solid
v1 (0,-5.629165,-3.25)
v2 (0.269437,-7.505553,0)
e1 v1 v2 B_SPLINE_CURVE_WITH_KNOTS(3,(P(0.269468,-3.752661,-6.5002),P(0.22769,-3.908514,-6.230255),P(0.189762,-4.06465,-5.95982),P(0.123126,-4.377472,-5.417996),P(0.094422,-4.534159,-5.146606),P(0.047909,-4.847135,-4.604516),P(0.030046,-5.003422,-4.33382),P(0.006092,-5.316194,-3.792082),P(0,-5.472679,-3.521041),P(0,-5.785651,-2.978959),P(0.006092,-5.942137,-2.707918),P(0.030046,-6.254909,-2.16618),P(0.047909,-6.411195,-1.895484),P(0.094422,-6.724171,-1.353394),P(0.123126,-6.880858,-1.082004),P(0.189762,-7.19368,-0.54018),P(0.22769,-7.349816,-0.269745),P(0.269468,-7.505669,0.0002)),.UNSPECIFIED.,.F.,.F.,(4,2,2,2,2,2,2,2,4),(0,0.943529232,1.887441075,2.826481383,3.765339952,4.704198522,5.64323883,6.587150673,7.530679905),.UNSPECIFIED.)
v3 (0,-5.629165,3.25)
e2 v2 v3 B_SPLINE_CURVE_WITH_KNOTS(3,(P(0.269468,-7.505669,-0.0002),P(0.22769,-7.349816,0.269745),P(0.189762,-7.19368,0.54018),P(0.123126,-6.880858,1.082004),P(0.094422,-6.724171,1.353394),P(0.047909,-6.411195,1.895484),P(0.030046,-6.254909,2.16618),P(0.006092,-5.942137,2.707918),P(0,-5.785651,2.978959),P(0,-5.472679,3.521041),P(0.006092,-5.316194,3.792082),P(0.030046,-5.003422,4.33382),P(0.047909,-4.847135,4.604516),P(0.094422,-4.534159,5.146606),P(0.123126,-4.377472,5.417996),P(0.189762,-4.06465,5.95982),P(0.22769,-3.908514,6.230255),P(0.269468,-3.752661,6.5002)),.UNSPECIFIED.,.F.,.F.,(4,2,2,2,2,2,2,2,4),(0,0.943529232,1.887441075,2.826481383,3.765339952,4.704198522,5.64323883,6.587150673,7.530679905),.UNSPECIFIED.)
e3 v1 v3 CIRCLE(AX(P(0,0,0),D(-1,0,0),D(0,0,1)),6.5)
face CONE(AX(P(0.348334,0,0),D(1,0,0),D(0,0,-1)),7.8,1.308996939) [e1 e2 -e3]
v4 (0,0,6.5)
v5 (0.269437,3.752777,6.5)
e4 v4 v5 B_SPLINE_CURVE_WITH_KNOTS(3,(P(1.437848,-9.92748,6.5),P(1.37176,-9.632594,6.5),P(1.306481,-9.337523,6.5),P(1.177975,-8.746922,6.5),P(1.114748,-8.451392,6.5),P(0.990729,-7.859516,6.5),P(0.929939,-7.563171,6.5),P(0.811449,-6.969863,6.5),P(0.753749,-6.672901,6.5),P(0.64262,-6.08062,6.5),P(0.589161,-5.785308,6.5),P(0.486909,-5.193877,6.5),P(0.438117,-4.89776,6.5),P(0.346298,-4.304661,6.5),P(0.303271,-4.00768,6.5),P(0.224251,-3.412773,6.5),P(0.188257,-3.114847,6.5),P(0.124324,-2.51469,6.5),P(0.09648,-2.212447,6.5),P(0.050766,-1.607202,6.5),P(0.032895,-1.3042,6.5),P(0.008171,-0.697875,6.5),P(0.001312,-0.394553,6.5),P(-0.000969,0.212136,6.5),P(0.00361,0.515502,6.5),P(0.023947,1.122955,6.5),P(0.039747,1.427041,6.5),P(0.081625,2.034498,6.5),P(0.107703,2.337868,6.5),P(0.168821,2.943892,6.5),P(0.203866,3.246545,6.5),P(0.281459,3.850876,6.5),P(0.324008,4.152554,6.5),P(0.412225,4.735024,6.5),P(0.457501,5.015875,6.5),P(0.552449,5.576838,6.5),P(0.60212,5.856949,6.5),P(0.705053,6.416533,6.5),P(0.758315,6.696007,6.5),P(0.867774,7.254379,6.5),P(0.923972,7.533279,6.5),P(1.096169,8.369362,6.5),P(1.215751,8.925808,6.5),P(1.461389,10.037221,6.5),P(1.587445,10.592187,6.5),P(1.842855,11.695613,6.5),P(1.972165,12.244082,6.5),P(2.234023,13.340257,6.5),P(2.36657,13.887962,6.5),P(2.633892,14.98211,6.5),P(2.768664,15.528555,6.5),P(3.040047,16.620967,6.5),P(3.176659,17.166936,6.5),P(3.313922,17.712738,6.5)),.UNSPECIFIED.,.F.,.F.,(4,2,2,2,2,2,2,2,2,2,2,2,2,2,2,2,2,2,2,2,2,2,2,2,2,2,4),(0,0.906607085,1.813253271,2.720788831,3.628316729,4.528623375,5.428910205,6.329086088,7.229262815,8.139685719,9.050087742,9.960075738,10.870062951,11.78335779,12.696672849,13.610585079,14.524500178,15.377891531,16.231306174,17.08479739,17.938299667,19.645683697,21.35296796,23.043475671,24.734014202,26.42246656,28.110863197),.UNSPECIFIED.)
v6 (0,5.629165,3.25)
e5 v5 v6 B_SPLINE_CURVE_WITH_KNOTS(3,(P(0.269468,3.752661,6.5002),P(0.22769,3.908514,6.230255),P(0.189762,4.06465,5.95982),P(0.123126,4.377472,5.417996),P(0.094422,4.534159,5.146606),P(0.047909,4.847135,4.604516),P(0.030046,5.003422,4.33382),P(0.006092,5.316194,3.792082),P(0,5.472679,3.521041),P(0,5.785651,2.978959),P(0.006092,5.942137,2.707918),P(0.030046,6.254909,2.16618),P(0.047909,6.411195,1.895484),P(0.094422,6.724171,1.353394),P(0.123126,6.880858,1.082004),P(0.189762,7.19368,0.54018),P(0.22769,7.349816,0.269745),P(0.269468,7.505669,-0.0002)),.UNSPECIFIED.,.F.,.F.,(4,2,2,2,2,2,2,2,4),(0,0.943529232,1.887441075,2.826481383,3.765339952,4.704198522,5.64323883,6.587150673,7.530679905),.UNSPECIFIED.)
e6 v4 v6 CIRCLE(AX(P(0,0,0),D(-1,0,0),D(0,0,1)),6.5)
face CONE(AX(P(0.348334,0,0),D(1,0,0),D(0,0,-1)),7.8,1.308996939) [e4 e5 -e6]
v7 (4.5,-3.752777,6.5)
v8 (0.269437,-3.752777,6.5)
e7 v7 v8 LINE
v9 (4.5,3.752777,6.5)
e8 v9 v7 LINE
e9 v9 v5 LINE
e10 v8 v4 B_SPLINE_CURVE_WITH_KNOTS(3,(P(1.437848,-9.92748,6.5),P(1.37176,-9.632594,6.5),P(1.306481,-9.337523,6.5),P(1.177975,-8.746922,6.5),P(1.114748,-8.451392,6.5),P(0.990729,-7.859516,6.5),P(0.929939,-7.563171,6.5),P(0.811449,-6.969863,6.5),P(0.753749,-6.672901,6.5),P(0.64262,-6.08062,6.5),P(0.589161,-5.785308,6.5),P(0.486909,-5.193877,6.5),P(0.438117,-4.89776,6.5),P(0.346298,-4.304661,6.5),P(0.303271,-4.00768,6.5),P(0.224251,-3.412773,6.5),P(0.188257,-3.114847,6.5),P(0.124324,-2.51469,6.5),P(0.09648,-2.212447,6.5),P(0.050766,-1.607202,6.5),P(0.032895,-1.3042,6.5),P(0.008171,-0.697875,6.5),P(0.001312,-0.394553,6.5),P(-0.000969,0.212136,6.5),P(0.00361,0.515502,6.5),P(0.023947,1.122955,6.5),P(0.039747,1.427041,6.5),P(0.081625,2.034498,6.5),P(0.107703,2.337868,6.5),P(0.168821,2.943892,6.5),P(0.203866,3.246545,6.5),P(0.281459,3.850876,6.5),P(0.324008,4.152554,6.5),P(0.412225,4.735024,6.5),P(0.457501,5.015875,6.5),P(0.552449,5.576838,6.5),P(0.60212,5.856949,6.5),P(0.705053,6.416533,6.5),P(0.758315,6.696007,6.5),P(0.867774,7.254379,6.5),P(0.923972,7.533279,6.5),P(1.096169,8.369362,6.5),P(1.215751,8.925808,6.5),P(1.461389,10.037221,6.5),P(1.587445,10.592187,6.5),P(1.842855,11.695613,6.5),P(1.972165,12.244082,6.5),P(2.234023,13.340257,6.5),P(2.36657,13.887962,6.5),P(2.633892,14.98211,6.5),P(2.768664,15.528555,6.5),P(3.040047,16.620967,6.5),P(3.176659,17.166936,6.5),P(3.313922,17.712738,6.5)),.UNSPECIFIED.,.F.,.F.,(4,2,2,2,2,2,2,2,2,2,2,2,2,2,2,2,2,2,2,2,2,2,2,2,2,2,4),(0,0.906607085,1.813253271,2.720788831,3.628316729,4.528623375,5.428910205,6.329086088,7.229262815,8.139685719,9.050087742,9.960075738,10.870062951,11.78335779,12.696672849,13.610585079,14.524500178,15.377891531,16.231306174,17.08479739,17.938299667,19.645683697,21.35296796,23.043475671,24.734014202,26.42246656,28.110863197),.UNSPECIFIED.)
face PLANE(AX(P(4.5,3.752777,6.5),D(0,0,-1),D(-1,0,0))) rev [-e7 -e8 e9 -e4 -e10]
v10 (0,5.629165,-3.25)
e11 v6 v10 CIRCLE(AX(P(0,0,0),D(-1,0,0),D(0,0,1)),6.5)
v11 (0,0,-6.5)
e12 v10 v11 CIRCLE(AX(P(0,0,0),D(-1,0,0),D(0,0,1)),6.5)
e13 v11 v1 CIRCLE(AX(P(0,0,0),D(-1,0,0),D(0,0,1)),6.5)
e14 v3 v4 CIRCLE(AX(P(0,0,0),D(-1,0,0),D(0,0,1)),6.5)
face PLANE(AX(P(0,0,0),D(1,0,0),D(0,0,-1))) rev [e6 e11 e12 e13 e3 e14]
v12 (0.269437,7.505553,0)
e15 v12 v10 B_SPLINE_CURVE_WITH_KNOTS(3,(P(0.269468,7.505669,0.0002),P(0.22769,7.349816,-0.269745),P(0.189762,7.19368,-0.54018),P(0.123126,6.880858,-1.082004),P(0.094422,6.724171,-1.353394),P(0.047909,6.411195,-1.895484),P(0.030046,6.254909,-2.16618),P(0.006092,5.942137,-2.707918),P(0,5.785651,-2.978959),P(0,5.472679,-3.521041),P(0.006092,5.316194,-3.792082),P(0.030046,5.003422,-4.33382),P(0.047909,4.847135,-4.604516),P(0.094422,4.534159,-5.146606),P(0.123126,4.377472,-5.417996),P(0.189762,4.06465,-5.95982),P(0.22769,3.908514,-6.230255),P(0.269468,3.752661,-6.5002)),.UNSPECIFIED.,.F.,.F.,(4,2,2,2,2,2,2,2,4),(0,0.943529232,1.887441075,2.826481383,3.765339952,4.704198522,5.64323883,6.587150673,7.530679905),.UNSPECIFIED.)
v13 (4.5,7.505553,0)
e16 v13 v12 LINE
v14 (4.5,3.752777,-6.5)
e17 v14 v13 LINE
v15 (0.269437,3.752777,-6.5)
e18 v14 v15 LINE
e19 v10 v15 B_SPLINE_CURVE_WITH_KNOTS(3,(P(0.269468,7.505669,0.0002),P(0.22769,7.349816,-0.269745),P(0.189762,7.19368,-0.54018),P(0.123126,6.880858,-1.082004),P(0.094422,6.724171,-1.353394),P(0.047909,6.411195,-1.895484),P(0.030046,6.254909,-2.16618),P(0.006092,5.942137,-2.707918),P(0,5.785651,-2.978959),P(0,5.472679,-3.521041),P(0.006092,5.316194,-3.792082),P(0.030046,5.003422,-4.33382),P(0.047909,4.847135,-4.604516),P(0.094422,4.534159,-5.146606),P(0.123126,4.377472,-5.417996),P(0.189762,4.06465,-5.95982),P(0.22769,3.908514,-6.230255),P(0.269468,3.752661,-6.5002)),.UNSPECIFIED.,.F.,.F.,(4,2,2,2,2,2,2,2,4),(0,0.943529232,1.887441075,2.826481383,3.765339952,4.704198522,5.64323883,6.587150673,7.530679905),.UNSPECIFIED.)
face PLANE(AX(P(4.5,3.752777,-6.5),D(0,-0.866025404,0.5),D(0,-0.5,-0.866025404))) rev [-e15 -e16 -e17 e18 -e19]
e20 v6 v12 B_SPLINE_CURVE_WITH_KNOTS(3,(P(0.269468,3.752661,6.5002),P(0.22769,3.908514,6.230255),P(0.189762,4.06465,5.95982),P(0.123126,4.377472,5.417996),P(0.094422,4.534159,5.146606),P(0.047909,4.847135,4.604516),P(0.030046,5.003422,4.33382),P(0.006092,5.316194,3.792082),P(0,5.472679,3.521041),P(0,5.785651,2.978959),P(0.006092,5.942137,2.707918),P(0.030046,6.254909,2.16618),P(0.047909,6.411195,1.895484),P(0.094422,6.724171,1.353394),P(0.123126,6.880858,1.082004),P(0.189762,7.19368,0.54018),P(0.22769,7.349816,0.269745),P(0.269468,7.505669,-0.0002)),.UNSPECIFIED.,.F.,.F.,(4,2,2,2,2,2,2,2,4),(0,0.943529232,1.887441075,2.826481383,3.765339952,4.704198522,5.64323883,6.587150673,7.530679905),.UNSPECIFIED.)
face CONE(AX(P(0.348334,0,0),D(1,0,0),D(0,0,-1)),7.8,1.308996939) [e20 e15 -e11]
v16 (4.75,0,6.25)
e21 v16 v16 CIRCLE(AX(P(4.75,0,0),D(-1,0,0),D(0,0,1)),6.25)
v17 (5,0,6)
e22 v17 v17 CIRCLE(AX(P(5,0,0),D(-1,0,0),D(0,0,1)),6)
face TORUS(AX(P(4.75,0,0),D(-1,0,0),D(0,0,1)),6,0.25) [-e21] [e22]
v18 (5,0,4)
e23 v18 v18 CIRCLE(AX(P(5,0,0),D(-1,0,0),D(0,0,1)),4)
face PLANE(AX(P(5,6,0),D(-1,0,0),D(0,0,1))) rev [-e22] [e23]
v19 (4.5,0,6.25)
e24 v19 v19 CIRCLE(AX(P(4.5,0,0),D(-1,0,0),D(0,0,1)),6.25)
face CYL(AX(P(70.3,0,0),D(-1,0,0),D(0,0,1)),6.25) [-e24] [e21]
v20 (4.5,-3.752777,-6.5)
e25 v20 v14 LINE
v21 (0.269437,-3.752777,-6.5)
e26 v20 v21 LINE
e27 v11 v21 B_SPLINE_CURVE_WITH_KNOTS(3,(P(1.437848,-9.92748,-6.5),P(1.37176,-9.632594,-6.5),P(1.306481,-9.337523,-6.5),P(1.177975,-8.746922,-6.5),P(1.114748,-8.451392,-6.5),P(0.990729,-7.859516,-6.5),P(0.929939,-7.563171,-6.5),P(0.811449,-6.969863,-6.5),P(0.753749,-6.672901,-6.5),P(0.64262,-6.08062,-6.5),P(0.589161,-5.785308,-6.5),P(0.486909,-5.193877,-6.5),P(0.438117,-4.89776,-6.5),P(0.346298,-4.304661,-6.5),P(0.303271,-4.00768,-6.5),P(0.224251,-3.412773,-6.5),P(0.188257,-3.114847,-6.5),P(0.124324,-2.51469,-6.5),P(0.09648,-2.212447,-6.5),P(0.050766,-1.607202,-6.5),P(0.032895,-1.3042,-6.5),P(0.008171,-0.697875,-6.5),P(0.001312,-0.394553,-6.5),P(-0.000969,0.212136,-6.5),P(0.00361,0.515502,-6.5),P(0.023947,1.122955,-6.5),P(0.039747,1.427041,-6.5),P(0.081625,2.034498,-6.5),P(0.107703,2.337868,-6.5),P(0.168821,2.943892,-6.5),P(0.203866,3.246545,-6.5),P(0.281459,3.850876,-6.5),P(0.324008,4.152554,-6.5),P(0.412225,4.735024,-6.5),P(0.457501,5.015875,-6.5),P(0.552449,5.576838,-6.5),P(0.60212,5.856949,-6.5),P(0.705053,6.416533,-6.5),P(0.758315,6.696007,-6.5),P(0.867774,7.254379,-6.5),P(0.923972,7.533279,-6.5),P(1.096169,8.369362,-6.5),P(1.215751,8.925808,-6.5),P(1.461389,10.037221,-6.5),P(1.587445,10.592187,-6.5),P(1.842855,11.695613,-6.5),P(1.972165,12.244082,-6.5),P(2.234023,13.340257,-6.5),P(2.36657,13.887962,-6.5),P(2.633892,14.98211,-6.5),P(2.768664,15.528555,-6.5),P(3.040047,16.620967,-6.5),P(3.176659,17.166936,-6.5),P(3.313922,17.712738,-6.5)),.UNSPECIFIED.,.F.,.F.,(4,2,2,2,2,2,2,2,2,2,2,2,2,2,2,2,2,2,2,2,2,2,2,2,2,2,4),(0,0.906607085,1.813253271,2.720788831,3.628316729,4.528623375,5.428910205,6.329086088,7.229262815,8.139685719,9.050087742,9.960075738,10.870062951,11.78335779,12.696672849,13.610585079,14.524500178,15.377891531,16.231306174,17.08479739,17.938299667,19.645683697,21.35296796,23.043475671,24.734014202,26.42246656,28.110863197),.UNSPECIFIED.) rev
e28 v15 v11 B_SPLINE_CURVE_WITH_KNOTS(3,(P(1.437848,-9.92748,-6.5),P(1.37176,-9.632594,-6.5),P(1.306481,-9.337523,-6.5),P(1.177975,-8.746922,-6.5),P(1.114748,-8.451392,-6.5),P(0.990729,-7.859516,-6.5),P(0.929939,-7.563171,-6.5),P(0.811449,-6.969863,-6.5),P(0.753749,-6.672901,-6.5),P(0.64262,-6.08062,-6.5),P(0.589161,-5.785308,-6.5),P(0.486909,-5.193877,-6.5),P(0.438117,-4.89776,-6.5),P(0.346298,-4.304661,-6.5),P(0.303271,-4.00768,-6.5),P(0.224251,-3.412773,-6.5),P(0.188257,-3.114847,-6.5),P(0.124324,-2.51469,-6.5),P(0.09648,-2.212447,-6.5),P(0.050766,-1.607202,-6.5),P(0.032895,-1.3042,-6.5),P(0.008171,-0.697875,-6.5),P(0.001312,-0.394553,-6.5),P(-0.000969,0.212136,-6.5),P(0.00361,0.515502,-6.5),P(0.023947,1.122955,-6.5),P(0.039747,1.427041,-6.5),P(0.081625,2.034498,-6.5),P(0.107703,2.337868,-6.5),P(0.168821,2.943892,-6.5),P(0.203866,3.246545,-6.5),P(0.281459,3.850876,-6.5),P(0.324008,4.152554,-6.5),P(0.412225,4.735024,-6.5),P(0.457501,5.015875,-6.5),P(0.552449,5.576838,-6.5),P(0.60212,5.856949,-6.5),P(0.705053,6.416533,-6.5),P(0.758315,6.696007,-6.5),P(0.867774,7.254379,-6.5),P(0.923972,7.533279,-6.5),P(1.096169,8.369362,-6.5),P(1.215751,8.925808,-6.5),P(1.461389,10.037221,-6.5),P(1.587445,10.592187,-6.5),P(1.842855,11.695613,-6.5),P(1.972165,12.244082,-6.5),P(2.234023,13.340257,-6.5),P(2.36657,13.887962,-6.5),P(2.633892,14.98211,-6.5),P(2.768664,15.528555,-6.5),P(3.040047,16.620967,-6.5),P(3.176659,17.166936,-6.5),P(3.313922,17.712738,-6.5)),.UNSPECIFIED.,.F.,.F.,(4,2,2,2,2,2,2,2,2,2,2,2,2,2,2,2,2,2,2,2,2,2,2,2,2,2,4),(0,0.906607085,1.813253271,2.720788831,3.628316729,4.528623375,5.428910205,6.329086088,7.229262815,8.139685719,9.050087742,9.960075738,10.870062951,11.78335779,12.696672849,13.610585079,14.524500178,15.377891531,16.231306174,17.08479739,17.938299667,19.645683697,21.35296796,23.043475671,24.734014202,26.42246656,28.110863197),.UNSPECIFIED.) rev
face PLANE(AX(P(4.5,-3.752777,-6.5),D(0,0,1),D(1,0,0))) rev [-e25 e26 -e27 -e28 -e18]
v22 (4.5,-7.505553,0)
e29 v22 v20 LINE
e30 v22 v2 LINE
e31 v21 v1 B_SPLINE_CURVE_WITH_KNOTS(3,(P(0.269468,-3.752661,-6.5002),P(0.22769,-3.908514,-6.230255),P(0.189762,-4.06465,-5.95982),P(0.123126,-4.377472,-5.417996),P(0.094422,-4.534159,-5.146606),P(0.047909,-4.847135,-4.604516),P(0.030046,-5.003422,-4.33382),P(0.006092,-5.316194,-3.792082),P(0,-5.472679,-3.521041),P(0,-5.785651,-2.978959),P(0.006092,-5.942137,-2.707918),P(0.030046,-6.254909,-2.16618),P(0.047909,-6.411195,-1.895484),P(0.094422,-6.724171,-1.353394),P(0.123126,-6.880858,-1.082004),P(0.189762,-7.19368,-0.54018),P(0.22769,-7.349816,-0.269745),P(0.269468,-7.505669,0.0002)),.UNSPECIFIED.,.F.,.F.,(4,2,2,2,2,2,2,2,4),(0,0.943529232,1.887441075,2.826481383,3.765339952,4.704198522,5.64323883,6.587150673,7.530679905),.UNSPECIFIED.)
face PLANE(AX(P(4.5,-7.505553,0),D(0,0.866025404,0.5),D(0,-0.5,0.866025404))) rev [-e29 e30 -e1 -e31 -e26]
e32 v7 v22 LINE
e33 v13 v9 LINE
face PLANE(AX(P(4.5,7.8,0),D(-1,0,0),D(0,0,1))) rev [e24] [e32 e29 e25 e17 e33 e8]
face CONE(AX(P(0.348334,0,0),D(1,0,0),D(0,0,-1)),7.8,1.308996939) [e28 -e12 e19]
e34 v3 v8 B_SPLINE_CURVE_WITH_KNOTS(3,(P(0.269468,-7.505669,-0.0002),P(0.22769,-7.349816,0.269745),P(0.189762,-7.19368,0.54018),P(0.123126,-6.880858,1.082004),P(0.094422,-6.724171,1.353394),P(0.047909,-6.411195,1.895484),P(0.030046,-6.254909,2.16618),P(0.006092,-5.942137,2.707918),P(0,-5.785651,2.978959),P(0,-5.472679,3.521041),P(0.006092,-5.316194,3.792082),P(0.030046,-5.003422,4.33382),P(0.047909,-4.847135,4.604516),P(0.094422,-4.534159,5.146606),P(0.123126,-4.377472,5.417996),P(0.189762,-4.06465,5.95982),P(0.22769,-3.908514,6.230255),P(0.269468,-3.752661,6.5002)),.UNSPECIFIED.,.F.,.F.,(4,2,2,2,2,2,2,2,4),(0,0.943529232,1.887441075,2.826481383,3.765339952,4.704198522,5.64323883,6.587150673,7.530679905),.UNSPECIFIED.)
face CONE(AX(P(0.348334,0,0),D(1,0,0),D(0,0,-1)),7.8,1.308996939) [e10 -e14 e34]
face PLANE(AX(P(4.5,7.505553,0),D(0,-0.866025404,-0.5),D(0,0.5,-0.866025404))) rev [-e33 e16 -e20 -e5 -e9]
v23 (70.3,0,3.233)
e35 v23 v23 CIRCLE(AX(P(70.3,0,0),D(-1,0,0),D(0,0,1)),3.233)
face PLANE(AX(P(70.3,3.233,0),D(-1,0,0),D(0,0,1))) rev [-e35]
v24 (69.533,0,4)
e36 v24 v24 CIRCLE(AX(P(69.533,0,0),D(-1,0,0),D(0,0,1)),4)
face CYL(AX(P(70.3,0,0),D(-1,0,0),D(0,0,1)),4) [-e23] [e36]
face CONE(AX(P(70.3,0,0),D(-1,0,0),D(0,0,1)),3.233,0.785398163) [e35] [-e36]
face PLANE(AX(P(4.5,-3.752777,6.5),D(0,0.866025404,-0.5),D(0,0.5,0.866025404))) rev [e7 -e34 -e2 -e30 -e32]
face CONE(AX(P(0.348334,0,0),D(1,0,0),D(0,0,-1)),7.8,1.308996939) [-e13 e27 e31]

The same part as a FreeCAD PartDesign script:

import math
import FreeCAD as App
import Part
import Sketcher

V = App.Vector
Q = App.Units.Quantity


def add_polygon(sketch, points):
    """Adds a closed chain of lines whose ends are joined by coincident constraints."""
    first, n = sketch.GeometryCount, len(points)
    for a, b in zip(points, points[1:] + points[:1]):
        sketch.addGeometry(Part.LineSegment(App.Vector(*a, 0), App.Vector(*b, 0)), False)
    for i in range(n):
        sketch.addConstraint(Sketcher.Constraint("Coincident", first + i, 2, first + (i + 1) % n, 1))

doc = App.newDocument("Part")
body = doc.addObject("PartDesign::Body", "Body")

sketch1 = body.newObject("Sketcher::SketchObject", "Sketch")
sketch1.AttachmentSupport = (doc.getObject("XY_Plane"), [""])
sketch1.MapMode = "FlatFace"
sketch1.addGeometry([
    Part.LineSegment(V(0, 6.5, 0), V(0, 0, 0)),
    Part.LineSegment(V(0, 0, 0), V(70.3, 0, 0)),
    Part.LineSegment(V(70.3, 0, 0), V(70.3, 3.23, 0)),
    Part.LineSegment(V(70.3, 3.23, 0), V(69.53, 4, 0)),
    Part.LineSegment(V(69.53, 4, 0), V(5, 4, 0)),
    Part.LineSegment(V(5, 4, 0), V(5, 6, 0)),
    Part.ArcOfCircle(Part.Circle(V(4.75, 6, 0), V(0, 0, 1), 0.25), math.radians(0), math.radians(90)),
    Part.LineSegment(V(4.75, 6.25, 0), V(4.5, 6.25, 0)),
    Part.LineSegment(V(4.5, 6.25, 0), V(4.5, 7.8, 0)),
    Part.LineSegment(V(4.5, 7.8, 0), V(0.35, 7.8, 0)),
    Part.LineSegment(V(0.35, 7.8, 0), V(0, 6.5, 0)),
], False)
sketch1.addConstraint([
    Sketcher.Constraint("Coincident", 0, 2, 1, 1),
    Sketcher.Constraint("Coincident", 1, 2, 2, 1),
    Sketcher.Constraint("Coincident", 2, 2, 3, 1),
    Sketcher.Constraint("Coincident", 3, 2, 4, 1),
    Sketcher.Constraint("Coincident", 4, 2, 5, 1),
    Sketcher.Constraint("Tangent", 5, 2, 6, 1),
    Sketcher.Constraint("Tangent", 6, 2, 7, 1),
    Sketcher.Constraint("Coincident", 7, 2, 8, 1),
    Sketcher.Constraint("Coincident", 8, 2, 9, 1),
    Sketcher.Constraint("Coincident", 9, 2, 10, 1),
    Sketcher.Constraint("Coincident", 10, 2, 0, 1),
    Sketcher.Constraint("Vertical", 0),
    Sketcher.Constraint("Horizontal", 1),
    Sketcher.Constraint("Vertical", 2),
    Sketcher.Constraint("Horizontal", 4),
    Sketcher.Constraint("Vertical", 5),
    Sketcher.Constraint("Horizontal", 7),
    Sketcher.Constraint("Vertical", 8),
    Sketcher.Constraint("Horizontal", 9),
    Sketcher.Constraint("Coincident", 0, 2, -1, 1),
    Sketcher.Constraint("DistanceY", 5, 1, 5, 2, Q("2 mm")),
    Sketcher.Constraint("Angle", 3, Q("135 deg")),
    Sketcher.Constraint("Angle", 10, Q("-105 deg")),
    Sketcher.Constraint("Radius", 6, Q("0.25 mm")),
    Sketcher.Constraint("DistanceX", 1, 1, 1, 2, Q("70.3 mm")),
    Sketcher.Constraint("DistanceY", 0, 2, 0, 1, Q("6.5 mm")),
    Sketcher.Constraint("DistanceY", -1, 1, 6, 3, Q("6 mm")),
    Sketcher.Constraint("DistanceX", -1, 1, 4, 2, Q("5 mm")),
    Sketcher.Constraint("DistanceX", 7, 2, 7, 1, Q("0.25 mm")),
    Sketcher.Constraint("DistanceY", 8, 1, 8, 2, Q("1.55 mm")),
    Sketcher.Constraint("DistanceX", 4, 2, 4, 1, Q("64.533 mm")),
])
revolution = body.newObject("PartDesign::Revolution", "Revolution")
revolution.Profile = sketch1
revolution.ReferenceAxis = (sketch1, ["H_Axis"])
revolution.Angle = 360

sketch2 = body.newObject("Sketcher::SketchObject", "Sketch001")
sketch2.AttachmentSupport = (doc.getObject("YZ_Plane"), [""])
sketch2.MapMode = "FlatFace"
add_polygon(sketch2, [(26, 26), (-26, 26), (-26, -26), (26, -26)])
add_polygon(sketch2, [(-4, 6), (4, 6), (8, 0), (4, -6), (-4, -6), (-8, 0)])
sketch2.addConstraint([
    Sketcher.Constraint("Horizontal", 0),
    Sketcher.Constraint("Vertical", 1),
    Sketcher.Constraint("Horizontal", 2),
    Sketcher.Constraint("Vertical", 3),
    Sketcher.Constraint("Horizontal", 4),
    Sketcher.Constraint("Horizontal", 7),
    Sketcher.Constraint("Symmetric", 0, 2, 2, 2, -1, 1),
    Sketcher.Constraint("Symmetric", 4, 2, 7, 2, -1, 1),
    Sketcher.Constraint("Symmetric", 5, 2, 8, 2, -1, 1),
    Sketcher.Constraint("PointOnObject", 5, 2, -1),
    Sketcher.Constraint("Parallel", 6, 9),
    Sketcher.Constraint("Vertical", 4, 2, 6, 2),
    Sketcher.Constraint("Equal", 2, 1),
    Sketcher.Constraint("DistanceX", 0, 2, 0, 1, Q("52 mm")),
    Sketcher.Constraint("Angle", 5, Q("-60 deg")),
    Sketcher.Constraint("DistanceY", 6, 2, 4, 2, Q("13 mm")),
    Sketcher.Constraint("DistanceX", 4, 1, 4, 2, Q("7.505554 mm")),
])
pocket1 = body.newObject("PartDesign::Pocket", "Pocket")
pocket1.Profile = sketch2
pocket1.Length = 4.5
pocket1.Reversed = True

doc.recompute()
